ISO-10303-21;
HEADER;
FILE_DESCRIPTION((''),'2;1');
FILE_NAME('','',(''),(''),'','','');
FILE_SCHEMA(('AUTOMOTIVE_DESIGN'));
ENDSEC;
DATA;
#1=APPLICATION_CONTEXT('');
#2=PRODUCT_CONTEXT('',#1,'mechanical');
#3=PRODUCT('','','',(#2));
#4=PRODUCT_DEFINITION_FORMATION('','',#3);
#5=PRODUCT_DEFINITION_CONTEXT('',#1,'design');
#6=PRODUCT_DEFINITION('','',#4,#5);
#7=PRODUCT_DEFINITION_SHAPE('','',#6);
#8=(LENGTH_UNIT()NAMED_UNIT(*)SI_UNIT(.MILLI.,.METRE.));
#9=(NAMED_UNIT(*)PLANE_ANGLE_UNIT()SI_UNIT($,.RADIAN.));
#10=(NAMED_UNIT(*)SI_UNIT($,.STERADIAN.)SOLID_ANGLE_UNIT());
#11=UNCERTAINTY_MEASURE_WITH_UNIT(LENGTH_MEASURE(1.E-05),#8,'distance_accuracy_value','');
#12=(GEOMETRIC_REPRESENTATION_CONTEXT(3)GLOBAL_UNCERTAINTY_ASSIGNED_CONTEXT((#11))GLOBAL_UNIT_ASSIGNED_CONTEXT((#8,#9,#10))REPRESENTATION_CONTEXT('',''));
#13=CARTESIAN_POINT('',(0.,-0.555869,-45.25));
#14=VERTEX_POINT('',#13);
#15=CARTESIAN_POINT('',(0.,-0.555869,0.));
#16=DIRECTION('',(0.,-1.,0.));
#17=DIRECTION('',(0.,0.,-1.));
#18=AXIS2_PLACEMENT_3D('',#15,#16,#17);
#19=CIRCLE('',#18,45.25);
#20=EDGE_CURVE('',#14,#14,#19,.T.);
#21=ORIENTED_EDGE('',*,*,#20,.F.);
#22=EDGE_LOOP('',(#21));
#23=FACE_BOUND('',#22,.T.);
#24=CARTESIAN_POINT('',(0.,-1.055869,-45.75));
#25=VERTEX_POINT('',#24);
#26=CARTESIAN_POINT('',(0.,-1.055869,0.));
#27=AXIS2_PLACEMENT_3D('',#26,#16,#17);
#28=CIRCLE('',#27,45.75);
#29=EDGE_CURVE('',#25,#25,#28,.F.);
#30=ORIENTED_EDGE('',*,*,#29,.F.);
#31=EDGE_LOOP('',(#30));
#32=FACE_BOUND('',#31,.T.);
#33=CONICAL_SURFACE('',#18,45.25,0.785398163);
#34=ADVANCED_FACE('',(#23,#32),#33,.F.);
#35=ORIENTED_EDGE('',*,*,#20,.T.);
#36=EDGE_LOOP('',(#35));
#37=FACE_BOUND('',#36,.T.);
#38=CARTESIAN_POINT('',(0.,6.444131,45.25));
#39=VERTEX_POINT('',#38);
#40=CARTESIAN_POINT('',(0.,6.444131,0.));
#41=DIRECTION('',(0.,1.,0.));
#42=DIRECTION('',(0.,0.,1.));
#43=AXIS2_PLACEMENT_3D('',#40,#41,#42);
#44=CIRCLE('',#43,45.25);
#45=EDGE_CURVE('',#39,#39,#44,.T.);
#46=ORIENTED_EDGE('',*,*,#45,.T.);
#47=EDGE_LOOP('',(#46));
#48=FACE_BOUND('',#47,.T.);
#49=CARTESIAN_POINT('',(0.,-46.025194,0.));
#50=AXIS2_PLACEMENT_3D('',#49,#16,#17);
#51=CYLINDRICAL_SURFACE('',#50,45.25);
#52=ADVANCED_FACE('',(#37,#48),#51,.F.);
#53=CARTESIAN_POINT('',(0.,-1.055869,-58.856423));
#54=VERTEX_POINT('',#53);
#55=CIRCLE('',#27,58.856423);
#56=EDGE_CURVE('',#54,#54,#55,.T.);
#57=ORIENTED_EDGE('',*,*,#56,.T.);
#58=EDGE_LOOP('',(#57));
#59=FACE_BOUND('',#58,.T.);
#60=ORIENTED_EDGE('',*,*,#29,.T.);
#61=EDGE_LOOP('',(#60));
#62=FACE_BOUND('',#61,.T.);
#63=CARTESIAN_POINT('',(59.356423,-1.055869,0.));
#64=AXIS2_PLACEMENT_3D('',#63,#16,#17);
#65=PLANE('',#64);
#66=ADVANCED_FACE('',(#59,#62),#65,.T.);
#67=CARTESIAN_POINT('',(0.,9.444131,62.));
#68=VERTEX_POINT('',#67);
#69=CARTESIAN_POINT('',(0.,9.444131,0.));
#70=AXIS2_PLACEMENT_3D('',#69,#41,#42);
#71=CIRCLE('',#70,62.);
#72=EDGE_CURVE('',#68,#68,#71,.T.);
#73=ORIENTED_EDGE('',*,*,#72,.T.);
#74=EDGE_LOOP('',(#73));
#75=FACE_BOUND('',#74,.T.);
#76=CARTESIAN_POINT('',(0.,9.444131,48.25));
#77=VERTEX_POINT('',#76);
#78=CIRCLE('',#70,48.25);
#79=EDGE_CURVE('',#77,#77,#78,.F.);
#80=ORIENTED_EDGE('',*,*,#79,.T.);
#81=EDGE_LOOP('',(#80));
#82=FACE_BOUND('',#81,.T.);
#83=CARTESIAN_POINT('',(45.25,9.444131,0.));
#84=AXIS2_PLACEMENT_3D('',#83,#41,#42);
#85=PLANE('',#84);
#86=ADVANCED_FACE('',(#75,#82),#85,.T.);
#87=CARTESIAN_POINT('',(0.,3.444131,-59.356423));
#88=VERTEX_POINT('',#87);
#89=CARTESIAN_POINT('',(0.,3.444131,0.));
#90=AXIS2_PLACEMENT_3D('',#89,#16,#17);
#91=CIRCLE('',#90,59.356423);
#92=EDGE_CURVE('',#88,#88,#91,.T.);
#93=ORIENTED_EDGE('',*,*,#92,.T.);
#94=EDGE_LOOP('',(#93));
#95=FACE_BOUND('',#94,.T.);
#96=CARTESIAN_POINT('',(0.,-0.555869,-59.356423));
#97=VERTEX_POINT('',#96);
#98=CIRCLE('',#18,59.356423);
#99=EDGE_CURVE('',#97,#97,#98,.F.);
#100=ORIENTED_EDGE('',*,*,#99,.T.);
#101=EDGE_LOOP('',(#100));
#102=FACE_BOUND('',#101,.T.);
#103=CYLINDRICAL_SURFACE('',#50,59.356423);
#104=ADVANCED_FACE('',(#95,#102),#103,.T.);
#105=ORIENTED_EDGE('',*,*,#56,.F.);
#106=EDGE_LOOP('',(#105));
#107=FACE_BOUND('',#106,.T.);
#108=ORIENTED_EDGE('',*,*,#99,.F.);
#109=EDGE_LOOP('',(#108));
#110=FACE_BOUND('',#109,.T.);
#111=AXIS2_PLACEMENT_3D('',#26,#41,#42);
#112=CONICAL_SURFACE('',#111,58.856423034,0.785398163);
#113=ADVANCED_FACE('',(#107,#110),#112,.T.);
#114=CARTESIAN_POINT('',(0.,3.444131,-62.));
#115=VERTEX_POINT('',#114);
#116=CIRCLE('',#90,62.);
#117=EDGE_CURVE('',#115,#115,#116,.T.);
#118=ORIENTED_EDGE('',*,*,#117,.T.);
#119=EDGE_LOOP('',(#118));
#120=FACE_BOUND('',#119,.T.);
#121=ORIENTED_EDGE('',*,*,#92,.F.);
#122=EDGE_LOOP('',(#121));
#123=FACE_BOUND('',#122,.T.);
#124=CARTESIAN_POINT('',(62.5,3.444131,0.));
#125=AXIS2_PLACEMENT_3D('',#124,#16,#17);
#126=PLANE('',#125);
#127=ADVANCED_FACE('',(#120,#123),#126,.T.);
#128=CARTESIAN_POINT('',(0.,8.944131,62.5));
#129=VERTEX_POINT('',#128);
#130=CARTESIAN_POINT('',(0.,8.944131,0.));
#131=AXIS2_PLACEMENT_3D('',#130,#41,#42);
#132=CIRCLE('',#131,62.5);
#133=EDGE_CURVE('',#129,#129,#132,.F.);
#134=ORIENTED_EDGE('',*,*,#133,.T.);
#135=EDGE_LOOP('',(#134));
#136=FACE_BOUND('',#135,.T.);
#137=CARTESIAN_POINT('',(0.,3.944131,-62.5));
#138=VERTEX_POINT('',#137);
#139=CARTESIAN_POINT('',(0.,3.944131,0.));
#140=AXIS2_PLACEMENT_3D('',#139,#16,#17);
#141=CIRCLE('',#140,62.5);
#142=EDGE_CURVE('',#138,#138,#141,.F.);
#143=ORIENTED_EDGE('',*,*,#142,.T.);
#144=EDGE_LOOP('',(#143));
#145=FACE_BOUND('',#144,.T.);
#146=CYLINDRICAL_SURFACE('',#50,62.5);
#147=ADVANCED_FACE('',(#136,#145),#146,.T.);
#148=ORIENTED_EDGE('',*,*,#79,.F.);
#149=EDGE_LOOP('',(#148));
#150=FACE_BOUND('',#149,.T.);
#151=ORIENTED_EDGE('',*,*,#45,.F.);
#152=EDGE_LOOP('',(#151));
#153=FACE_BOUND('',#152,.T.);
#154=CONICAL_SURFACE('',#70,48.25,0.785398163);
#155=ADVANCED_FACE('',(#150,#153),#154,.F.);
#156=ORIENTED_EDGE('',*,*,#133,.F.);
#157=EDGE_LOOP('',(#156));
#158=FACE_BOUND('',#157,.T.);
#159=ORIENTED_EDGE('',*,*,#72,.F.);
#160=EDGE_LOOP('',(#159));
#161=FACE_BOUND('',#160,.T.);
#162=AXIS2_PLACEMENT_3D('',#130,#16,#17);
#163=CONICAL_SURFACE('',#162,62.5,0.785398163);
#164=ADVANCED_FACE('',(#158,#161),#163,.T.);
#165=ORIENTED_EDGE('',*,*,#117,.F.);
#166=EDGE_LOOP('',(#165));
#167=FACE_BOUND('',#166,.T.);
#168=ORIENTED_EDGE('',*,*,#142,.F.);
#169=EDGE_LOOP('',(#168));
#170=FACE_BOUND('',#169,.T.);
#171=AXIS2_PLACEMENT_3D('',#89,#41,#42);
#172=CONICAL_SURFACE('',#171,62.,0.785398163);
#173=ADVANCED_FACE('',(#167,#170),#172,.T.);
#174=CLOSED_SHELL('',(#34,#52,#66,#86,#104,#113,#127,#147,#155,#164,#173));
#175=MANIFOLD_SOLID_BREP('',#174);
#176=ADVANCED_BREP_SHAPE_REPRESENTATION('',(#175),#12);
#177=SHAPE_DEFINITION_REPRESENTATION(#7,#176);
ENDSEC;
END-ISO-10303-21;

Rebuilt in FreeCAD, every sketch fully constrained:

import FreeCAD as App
import Part
import Sketcher
from FreeCAD import Vector
Q = App.Units.Quantity


def edges_at(feature, points):
    """Names of the edges that pass closest to the given points."""
    edges = feature.Shape.Edges
    near = lambda p: min(range(len(edges)), key=lambda i: edges[i].distToShape(Part.Vertex(*p))[0])
    return sorted({f"Edge{near(p) + 1}" for p in points})

doc = App.newDocument("Part")
body = doc.addObject("PartDesign::Body", "Body")

# Sketch on XY plane
sketch1 = body.newObject("Sketcher::SketchObject", "Sketch")
sketch1.AttachmentSupport = (doc.getObject("XY_Plane"), [""])
sketch1.MapMode = "FlatFace"
sketch1.addGeometry(Part.LineSegment(Vector(62.5, 9.4, 0), Vector(45.2, 9.4, 0)), False)
sketch1.addGeometry(Part.LineSegment(Vector(45.2, 9.4, 0), Vector(45.2, -1.1, 0)), False)
sketch1.addGeometry(Part.LineSegment(Vector(45.2, -1.1, 0), Vector(59.4, -1.1, 0)), False)
sketch1.addGeometry(Part.LineSegment(Vector(59.4, -1.1, 0), Vector(59.4, 3.4, 0)), False)
sketch1.addGeometry(Part.LineSegment(Vector(59.4, 3.4, 0), Vector(62.5, 3.4, 0)), False)
sketch1.addGeometry(Part.LineSegment(Vector(62.5, 3.4, 0), Vector(62.5, 9.4, 0)), False)
sketch1.addConstraint(Sketcher.Constraint("Coincident", 0, 2, 1, 1))
sketch1.addConstraint(Sketcher.Constraint("Coincident", 1, 2, 2, 1))
sketch1.addConstraint(Sketcher.Constraint("Coincident", 2, 2, 3, 1))
sketch1.addConstraint(Sketcher.Constraint("Coincident", 3, 2, 4, 1))
sketch1.addConstraint(Sketcher.Constraint("Coincident", 4, 2, 5, 1))
sketch1.addConstraint(Sketcher.Constraint("Coincident", 5, 2, 0, 1))
sketch1.addConstraint(Sketcher.Constraint("Horizontal", 0))
sketch1.addConstraint(Sketcher.Constraint("Vertical", 1))
sketch1.addConstraint(Sketcher.Constraint("Horizontal", 2))
sketch1.addConstraint(Sketcher.Constraint("Vertical", 3))
sketch1.addConstraint(Sketcher.Constraint("Horizontal", 4))
sketch1.addConstraint(Sketcher.Constraint("Vertical", 5))
sketch1.addConstraint(Sketcher.Constraint("DistanceY", 5, 1, 5, 2, Q("6 mm")))
sketch1.addConstraint(Sketcher.Constraint("DistanceY", 1, 2, 1, 1, Q("10.5 mm")))
sketch1.addConstraint(Sketcher.Constraint("DistanceX", 0, 2, 0, 1, Q("17.25 mm")))
sketch1.addConstraint(Sketcher.Constraint("DistanceX", -1, 1, 4, 2, Q("62.5 mm")))
sketch1.addConstraint(Sketcher.Constraint("DistanceX", 2, 1, 2, 2, Q("14.106423 mm")))
sketch1.addConstraint(Sketcher.Constraint("DistanceY", -1, 1, 0, 2, Q("9.444131 mm")))
revolution = body.newObject("PartDesign::Revolution", "Revolution")
revolution.Profile = sketch1
revolution.ReferenceAxis = (sketch1, ["V_Axis"])
revolution.Angle = 360
doc.recompute()

chamfer = body.newObject("PartDesign::Chamfer", "Chamfer")
chamfer.Base = (revolution, edges_at(revolution, [(0, 9.444, 45.25)]))
chamfer.Size = 3
doc.recompute()

chamfer2 = body.newObject("PartDesign::Chamfer", "Chamfer001")
chamfer2.Base = (chamfer, edges_at(chamfer, [
    (0, -1.056, 45.25),
    (0, -1.056, 59.356),
    (0, 3.444, 62.5),
    (0, 9.444, 62.5),
]))
chamfer2.Size = 0.5

doc.recompute()
